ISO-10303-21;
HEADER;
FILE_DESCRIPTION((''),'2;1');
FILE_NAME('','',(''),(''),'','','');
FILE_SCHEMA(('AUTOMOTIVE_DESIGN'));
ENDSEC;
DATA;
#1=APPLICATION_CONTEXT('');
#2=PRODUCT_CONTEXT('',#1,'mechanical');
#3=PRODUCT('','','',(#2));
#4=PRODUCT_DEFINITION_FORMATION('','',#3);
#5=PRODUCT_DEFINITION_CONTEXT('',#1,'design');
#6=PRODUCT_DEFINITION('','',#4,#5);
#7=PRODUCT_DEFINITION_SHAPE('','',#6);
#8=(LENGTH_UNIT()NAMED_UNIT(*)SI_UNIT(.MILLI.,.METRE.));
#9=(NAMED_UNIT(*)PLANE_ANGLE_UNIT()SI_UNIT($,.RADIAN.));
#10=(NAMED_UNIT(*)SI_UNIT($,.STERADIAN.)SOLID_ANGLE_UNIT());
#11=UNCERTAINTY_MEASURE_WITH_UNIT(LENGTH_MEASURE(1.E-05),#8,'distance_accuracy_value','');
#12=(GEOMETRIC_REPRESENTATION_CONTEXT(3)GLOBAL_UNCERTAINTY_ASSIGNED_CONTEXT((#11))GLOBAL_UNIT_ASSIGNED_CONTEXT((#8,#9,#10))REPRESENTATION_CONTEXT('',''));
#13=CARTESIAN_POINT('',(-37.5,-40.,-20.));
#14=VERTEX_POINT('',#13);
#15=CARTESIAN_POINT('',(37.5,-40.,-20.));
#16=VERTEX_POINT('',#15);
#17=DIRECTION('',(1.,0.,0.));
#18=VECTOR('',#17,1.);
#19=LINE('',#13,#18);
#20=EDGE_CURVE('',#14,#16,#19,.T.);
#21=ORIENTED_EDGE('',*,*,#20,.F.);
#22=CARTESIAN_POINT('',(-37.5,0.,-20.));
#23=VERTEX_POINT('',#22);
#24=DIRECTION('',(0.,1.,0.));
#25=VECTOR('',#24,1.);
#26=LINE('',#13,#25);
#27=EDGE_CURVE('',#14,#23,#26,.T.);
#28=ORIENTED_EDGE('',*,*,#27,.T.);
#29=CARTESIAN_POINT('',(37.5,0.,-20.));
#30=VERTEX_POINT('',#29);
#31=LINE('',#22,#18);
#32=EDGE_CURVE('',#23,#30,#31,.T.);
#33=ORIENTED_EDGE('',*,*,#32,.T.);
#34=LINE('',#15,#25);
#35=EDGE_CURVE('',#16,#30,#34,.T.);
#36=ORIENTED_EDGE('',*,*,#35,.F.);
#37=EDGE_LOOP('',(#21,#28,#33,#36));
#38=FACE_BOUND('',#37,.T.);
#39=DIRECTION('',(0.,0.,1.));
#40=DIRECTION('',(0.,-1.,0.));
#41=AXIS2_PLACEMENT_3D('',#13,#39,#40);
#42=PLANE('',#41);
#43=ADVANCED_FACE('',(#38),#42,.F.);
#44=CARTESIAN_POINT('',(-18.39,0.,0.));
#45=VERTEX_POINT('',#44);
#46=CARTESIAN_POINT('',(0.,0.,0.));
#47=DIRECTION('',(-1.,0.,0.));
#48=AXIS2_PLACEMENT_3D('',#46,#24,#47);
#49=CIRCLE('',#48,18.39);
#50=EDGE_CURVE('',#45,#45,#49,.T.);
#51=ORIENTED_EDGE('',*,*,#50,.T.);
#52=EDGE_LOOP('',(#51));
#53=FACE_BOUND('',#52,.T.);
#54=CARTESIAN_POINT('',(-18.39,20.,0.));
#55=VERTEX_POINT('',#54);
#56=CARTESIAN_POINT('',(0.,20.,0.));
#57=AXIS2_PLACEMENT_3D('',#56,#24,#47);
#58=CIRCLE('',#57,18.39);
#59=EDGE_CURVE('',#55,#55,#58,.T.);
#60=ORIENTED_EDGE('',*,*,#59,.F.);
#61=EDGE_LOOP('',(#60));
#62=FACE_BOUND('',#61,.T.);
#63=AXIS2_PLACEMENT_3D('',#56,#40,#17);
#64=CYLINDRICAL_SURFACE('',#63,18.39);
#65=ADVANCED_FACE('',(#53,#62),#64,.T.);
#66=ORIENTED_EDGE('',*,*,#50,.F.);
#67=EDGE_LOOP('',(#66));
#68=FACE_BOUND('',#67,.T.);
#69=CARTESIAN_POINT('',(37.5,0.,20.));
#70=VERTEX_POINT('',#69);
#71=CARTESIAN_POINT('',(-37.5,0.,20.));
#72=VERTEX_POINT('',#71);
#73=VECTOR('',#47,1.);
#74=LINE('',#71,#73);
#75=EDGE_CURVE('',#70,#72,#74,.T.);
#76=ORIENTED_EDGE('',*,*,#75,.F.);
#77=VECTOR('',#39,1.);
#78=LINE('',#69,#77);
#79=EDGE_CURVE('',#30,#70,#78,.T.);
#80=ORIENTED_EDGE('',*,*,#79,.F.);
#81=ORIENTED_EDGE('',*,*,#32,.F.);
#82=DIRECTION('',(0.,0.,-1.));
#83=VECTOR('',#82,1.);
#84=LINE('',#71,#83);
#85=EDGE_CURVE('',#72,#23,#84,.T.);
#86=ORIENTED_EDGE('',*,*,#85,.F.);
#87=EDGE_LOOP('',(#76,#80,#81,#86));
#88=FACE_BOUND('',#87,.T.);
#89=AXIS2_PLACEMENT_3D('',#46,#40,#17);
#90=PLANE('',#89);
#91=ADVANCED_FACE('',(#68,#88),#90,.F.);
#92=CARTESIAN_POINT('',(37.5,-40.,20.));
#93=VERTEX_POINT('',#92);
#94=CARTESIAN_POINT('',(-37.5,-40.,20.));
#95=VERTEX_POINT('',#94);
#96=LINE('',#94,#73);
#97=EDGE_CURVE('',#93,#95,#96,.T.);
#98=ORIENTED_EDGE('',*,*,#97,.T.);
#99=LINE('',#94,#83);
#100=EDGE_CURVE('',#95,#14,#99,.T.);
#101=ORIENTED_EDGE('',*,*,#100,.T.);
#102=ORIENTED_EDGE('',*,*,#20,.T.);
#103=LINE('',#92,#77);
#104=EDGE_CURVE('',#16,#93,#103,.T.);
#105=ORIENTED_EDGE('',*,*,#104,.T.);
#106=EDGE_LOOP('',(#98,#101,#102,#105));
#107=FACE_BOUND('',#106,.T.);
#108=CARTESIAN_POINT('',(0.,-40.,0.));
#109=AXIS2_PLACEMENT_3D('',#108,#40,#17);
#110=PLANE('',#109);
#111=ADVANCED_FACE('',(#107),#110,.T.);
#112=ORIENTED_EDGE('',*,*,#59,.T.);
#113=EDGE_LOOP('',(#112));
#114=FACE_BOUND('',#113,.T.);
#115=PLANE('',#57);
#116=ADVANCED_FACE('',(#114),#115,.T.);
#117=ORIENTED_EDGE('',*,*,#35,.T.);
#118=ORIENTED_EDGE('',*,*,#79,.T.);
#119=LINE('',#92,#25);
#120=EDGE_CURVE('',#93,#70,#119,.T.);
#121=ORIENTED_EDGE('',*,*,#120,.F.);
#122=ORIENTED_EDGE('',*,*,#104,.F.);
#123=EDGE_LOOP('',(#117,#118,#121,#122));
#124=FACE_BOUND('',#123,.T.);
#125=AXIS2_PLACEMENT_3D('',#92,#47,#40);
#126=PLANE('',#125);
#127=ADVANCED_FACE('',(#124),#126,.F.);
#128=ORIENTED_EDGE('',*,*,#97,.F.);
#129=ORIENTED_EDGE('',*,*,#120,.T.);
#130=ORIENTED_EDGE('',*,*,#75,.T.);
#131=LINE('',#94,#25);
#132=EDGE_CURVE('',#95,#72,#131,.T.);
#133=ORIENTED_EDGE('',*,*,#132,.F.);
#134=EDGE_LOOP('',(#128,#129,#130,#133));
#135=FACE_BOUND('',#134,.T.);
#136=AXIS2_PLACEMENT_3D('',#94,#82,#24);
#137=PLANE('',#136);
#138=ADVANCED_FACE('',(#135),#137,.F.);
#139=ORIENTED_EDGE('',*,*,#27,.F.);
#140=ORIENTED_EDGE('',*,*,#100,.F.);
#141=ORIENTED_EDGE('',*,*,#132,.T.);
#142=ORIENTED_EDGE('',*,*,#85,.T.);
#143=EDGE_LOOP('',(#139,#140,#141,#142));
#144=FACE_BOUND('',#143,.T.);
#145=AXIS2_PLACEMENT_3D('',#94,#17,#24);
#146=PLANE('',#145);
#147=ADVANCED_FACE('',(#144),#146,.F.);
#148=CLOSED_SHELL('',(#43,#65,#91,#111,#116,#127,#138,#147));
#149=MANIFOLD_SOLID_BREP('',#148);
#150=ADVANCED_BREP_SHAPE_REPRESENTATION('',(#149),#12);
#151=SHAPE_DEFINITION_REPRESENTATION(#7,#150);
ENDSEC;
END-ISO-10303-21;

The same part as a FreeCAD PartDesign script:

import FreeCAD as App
import Part
import Sketcher
from FreeCAD import Vector

doc = App.newDocument("Part")
body = doc.addObject("PartDesign::Body", "Body")

sketch1 = body.newObject("Sketcher::SketchObject", "Sketch")
sketch1.AttachmentSupport = (doc.getObject("XY_Plane"), [""])
sketch1.MapMode = "FlatFace"
sketch1.addGeometry(Part.LineSegment(Vector(-38, 20, 0), Vector(-38, -20, 0)), False)
sketch1.addGeometry(Part.LineSegment(Vector(-38, -20, 0), Vector(38, -20, 0)), False)
sketch1.addGeometry(Part.LineSegment(Vector(38, -20, 0), Vector(38, 20, 0)), False)
sketch1.addGeometry(Part.LineSegment(Vector(38, 20, 0), Vector(-38, 20, 0)), False)
sketch1.addConstraint(Sketcher.Constraint("Coincident", 0, 2, 1, 1))
sketch1.addConstraint(Sketcher.Constraint("Coincident", 1, 2, 2, 1))
sketch1.addConstraint(Sketcher.Constraint("Coincident", 2, 2, 3, 1))
sketch1.addConstraint(Sketcher.Constraint("Coincident", 3, 2, 0, 1))
sketch1.addConstraint(Sketcher.Constraint("Vertical", 0))
sketch1.addConstraint(Sketcher.Constraint("Horizontal", 1))
sketch1.addConstraint(Sketcher.Constraint("Vertical", 2))
sketch1.addConstraint(Sketcher.Constraint("Horizontal", 3))
sketch1.addConstraint(Sketcher.Constraint("Symmetric", 0, 2, 2, 2, -1, 1))
sketch1.addConstraint(Sketcher.Constraint("DistanceX", 1, 1, 1, 2, 75.0))
sketch1.addConstraint(Sketcher.Constraint("DistanceY", 0, 2, 0, 1, 40.0))
pad1 = body.newObject("PartDesign::Pad", "Pad")
pad1.Profile = sketch1
pad1.Length = 40

sketch2 = body.newObject("Sketcher::SketchObject", "Sketch001")
sketch2.AttachmentSupport = (doc.getObject("XY_Plane"), [""])
sketch2.MapMode = "FlatFace"
sketch2.addGeometry(Part.Circle(Vector(0, 0, 0), Vector(0, 0, 1), 18), False)
sketch2.addConstraint(Sketcher.Constraint("Coincident", 0, 3, -1, 1))
sketch2.addConstraint(Sketcher.Constraint("Diameter", 0, 36.78))
pad2 = body.newObject("PartDesign::Pad", "Pad001")
pad2.Profile = sketch2
pad2.Length = 20
pad2.Reversed = True
body2 = doc.addObject("PartDesign::Body", "Body001")
doc.recompute()

body.Placement = App.Placement(Vector(0, 0, 20), App.Rotation(Vector(1, 0, 0), 180))
boolean = body2.newObject("PartDesign::Boolean", "Boolean")
boolean.Type = "Fuse"
boolean.addObjects([body])
body3 = doc.addObject("PartDesign::Body", "Body002")
doc.recompute()

body2.Placement = App.Placement(Vector(0, 10, 10), App.Rotation(Vector(1, 0, 0), 90))
boolean2 = body3.newObject("PartDesign::Boolean", "Boolean001")
boolean2.Type = "Fuse"
boolean2.addObjects([body2])
body4 = doc.addObject("PartDesign::Body", "Body003")
doc.recompute()

body3.Placement = App.Placement(Vector(0, 0, 20), App.Rotation(Vector(1, 0, 0), 180))
boolean3 = body4.newObject("PartDesign::Boolean", "Boolean002")
boolean3.Type = "Fuse"
boolean3.addObjects([body3])
body5 = doc.addObject("PartDesign::Body", "Body004")
doc.recompute()

body4.Placement = App.Placement(Vector(0, -10, 0), App.Rotation(Vector(0, 0, 1), 0))
boolean4 = body5.newObject("PartDesign::Boolean", "Boolean003")
boolean4.Type = "Fuse"
boolean4.addObjects([body4])
body6 = doc.addObject("PartDesign::Body", "Body005")
doc.recompute()

body5.Placement = App.Placement(Vector(0, 0, -10), App.Rotation(Vector(0, 0, 1), 0))
boolean5 = body6.newObject("PartDesign::Boolean", "Boolean004")
boolean5.Type = "Fuse"
boolean5.addObjects([body5])

doc.recompute()
